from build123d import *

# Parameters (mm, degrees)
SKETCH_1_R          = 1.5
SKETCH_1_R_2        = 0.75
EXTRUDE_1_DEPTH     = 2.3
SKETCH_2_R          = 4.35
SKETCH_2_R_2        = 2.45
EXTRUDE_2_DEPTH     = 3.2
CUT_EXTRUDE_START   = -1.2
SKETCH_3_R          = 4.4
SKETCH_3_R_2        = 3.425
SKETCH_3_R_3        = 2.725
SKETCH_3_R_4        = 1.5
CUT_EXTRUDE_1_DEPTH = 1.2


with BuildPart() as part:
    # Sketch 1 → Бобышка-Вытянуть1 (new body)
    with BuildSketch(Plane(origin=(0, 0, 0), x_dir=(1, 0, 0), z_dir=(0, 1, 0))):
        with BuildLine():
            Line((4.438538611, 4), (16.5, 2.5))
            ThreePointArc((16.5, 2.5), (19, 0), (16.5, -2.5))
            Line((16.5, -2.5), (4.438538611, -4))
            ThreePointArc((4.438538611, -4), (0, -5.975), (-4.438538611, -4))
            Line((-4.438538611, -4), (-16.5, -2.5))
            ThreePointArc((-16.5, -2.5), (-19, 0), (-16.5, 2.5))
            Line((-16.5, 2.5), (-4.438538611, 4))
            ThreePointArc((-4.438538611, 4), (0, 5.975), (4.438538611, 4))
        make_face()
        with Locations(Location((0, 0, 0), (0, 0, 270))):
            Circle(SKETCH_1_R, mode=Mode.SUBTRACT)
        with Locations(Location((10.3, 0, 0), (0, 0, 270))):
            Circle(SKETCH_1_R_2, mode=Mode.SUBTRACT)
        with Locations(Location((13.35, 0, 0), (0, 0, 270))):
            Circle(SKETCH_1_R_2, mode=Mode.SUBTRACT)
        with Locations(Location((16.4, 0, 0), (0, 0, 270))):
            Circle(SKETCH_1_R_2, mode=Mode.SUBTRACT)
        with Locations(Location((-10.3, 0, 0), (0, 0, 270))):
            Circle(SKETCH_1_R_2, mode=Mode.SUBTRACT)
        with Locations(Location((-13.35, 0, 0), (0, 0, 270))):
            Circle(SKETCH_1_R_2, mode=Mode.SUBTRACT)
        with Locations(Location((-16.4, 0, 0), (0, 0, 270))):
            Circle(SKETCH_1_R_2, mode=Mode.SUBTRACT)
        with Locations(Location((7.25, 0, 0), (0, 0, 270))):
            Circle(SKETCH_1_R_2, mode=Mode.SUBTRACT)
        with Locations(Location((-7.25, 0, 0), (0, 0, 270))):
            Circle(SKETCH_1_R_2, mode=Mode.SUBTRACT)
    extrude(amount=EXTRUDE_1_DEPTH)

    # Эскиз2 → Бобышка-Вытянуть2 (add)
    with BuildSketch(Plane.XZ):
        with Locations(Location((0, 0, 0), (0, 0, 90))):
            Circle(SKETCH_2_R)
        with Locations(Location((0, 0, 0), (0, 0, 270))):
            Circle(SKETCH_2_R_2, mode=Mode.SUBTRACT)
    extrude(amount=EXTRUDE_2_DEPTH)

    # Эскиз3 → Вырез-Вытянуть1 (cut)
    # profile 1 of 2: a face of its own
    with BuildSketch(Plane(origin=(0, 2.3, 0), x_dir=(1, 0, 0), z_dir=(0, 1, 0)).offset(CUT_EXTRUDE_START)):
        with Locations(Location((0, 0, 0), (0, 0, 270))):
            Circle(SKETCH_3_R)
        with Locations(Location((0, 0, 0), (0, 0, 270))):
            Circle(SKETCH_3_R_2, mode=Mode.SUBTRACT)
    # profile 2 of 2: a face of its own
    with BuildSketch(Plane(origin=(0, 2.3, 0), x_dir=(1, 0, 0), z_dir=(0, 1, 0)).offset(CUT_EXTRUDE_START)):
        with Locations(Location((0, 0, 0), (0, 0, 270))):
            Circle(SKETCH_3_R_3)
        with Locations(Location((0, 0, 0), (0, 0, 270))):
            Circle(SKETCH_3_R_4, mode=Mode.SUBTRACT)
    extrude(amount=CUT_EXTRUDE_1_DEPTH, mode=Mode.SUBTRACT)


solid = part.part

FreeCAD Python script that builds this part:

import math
import FreeCAD as App
import Part
import Sketcher

V = App.Vector

doc = App.newDocument("Part")
body = doc.addObject("PartDesign::Body", "Body")

sketch1 = doc.addObject("Sketcher::SketchObject", "Sketch")
body.addObject(sketch1)
sketch1.AttachmentSupport = (doc.XZ_Plane, [""])
sketch1.MapMode = "FlatFace"
sketch1.addGeometry([
    Part.LineSegment(V(16.5, -2.5, 0), V(4.4, -4, 0)),
    Part.ArcOfCircle(Part.Circle(V(0, 0, 0), V(0, 0, 1), 6), math.radians(-138), math.radians(-42)),
    Part.LineSegment(V(-4.4, -4, 0), V(-16.5, -2.5, 0)),
    Part.ArcOfCircle(Part.Circle(V(-16.5, 0, 0), V(0, 0, 1), 2.5), math.radians(90), math.radians(270)),
    Part.LineSegment(V(-16.5, 2.5, 0), V(-4.4, 4, 0)),
    Part.ArcOfCircle(Part.Circle(V(0, 0, 0), V(0, 0, 1), 6), math.radians(42), math.radians(138)),
    Part.LineSegment(V(4.4, 4, 0), V(16.5, 2.5, 0)),
    Part.ArcOfCircle(Part.Circle(V(16.5, 0, 0), V(0, 0, 1), 2.5), math.radians(-90), math.radians(90)),
    Part.Circle(V(16.4, 0, 0), V(0, 0, 1), 0.8),
    Part.Circle(V(13.3, 0, 0), V(0, 0, 1), 0.8),
    Part.Circle(V(10.3, 0, 0), V(0, 0, 1), 0.8),
    Part.Circle(V(7.2, 0, 0), V(0, 0, 1), 0.8),
    Part.Circle(V(0, 0, 0), V(0, 0, 1), 1.5),
    Part.Circle(V(-7.2, 0, 0), V(0, 0, 1), 0.8),
    Part.Circle(V(-10.3, 0, 0), V(0, 0, 1), 0.8),
    Part.Circle(V(-13.3, 0, 0), V(0, 0, 1), 0.8),
    Part.Circle(V(-16.4, 0, 0), V(0, 0, 1), 0.8),
], False)
sketch1.addConstraint([
    Sketcher.Constraint("Coincident", 0, 2, 1, 2),
    Sketcher.Constraint("Coincident", 1, 1, 2, 1),
    Sketcher.Constraint("Coincident", 2, 2, 3, 2),
    Sketcher.Constraint("Coincident", 3, 1, 4, 1),
    Sketcher.Constraint("Coincident", 4, 2, 5, 2),
    Sketcher.Constraint("Coincident", 5, 1, 6, 1),
    Sketcher.Constraint("Coincident", 6, 2, 7, 2),
    Sketcher.Constraint("Coincident", 7, 1, 0, 1),
    Sketcher.Constraint("Coincident", 1, 3, -1, 1),
    Sketcher.Constraint("Coincident", 5, 3, -1, 1),
    Sketcher.Constraint("Coincident", 12, 3, -1, 1),
    Sketcher.Constraint("Equal", 1, 5),
    Sketcher.Constraint("Equal", 3, 7),
    Sketcher.Constraint("Equal", 8, 9),
    Sketcher.Constraint("Equal", 9, 10),
    Sketcher.Constraint("Equal", 10, 11),
    Sketcher.Constraint("Equal", 11, 13),
    Sketcher.Constraint("Equal", 13, 14),
    Sketcher.Constraint("Equal", 14, 15),
    Sketcher.Constraint("Equal", 15, 16),
    Sketcher.Constraint("Symmetric", 3, 3, 7, 3, -1, 1),
    Sketcher.Constraint("Symmetric", 11, 3, 13, 3, -1, 1),
    Sketcher.Constraint("Symmetric", 10, 3, 14, 3, -1, 1),
    Sketcher.Constraint("Symmetric", 9, 3, 15, 3, -1, 1),
    Sketcher.Constraint("Symmetric", 8, 3, 16, 3, -1, 1),
    Sketcher.Constraint("Symmetric", 3, 1, 6, 2, -2),
    Sketcher.Constraint("PointOnObject", 8, 3, -1),
    Sketcher.Constraint("PointOnObject", 9, 3, -1),
    Sketcher.Constraint("PointOnObject", 10, 3, -1),
    Sketcher.Constraint("PointOnObject", 11, 3, -1),
    Sketcher.Constraint("Parallel", 0, 4),
    Sketcher.Constraint("Parallel", 2, 6),
    Sketcher.Constraint("Horizontal", 0, 2, 1, 1),
    Sketcher.Constraint("Horizontal", 4, 2, 5, 1),
    Sketcher.Constraint("Vertical", 3, 3, 2, 2),
    Sketcher.Constraint("Vertical", 2, 2, 3, 1),
    Sketcher.Constraint("Diameter", 12, 3.0),
    Sketcher.Constraint("Diameter", 8, 1.5),
    Sketcher.Constraint("Radius", 3, 2.5),
    Sketcher.Constraint("DistanceY", 0, 2, -1, 1, 4.0),
    Sketcher.Constraint("Radius", 1, 5.975),
    Sketcher.Constraint("DistanceX", 3, 3, 7, 3, 33.0),
    Sketcher.Constraint("DistanceX", -1, 1, 8, 3, 16.4),
    Sketcher.Constraint("DistanceX", -1, 1, 10, 3, 10.3),
    Sketcher.Constraint("DistanceX", 11, 3, 9, 3, 6.1),
    Sketcher.Constraint("DistanceX", 13, 3, 11, 3, 14.5),
])
pad1 = doc.addObject("PartDesign::Pad", "Pad")
body.addObject(pad1)
pad1.Profile = sketch1
pad1.Length = 2.3
pad1.Reversed = True

sketch2 = doc.addObject("Sketcher::SketchObject", "Sketch001")
body.addObject(sketch2)
sketch2.AttachmentSupport = (doc.XZ_Plane, [""])
sketch2.MapMode = "FlatFace"
sketch2.addGeometry([
    Part.Circle(V(0, 0, 0), V(0, 0, 1), 4.3),
    Part.Circle(V(0, 0, 0), V(0, 0, 1), 2.5),
], False)
sketch2.addConstraint([
    Sketcher.Constraint("Coincident", 0, 3, -1, 1),
    Sketcher.Constraint("Coincident", 1, 3, -1, 1),
    Sketcher.Constraint("Diameter", 0, 8.7),
    Sketcher.Constraint("Diameter", 1, 4.9),
])
pad2 = doc.addObject("PartDesign::Pad", "Pad001")
body.addObject(pad2)
pad2.Profile = sketch2
pad2.Length = 3.2

sketch3 = doc.addObject("Sketcher::SketchObject", "Sketch002")
body.addObject(sketch3)
sketch3.AttachmentSupport = (doc.XZ_Plane, [""])
sketch3.MapMode = "FlatFace"
sketch3.AttachmentOffset = App.Placement(V(0, 0, -1.1), App.Rotation())
sketch3.addGeometry([
    Part.Circle(V(0, 0, 0), V(0, 0, 1), 4.4),
    Part.Circle(V(0, 0, 0), V(0, 0, 1), 3.4),
    Part.Circle(V(0, 0, 0), V(0, 0, 1), 2.7),
    Part.Circle(V(0, 0, 0), V(0, 0, 1), 1.5),
], False)
sketch3.addConstraint([
    Sketcher.Constraint("Coincident", 0, 3, -1, 1),
    Sketcher.Constraint("Coincident", 1, 3, -1, 1),
    Sketcher.Constraint("Coincident", 2, 3, -1, 1),
    Sketcher.Constraint("Coincident", 3, 3, -1, 1),
    Sketcher.Constraint("Diameter", 3, 3.0),
    Sketcher.Constraint("Diameter", 0, 8.8),
    Sketcher.Constraint("Diameter", 1, 6.85),
    Sketcher.Constraint("Diameter", 2, 5.45),
])
pocket1 = doc.addObject("PartDesign::Pocket", "Pocket")
body.addObject(pocket1)
pocket1.Profile = sketch3
pocket1.Length = 1.2

doc.recompute()
